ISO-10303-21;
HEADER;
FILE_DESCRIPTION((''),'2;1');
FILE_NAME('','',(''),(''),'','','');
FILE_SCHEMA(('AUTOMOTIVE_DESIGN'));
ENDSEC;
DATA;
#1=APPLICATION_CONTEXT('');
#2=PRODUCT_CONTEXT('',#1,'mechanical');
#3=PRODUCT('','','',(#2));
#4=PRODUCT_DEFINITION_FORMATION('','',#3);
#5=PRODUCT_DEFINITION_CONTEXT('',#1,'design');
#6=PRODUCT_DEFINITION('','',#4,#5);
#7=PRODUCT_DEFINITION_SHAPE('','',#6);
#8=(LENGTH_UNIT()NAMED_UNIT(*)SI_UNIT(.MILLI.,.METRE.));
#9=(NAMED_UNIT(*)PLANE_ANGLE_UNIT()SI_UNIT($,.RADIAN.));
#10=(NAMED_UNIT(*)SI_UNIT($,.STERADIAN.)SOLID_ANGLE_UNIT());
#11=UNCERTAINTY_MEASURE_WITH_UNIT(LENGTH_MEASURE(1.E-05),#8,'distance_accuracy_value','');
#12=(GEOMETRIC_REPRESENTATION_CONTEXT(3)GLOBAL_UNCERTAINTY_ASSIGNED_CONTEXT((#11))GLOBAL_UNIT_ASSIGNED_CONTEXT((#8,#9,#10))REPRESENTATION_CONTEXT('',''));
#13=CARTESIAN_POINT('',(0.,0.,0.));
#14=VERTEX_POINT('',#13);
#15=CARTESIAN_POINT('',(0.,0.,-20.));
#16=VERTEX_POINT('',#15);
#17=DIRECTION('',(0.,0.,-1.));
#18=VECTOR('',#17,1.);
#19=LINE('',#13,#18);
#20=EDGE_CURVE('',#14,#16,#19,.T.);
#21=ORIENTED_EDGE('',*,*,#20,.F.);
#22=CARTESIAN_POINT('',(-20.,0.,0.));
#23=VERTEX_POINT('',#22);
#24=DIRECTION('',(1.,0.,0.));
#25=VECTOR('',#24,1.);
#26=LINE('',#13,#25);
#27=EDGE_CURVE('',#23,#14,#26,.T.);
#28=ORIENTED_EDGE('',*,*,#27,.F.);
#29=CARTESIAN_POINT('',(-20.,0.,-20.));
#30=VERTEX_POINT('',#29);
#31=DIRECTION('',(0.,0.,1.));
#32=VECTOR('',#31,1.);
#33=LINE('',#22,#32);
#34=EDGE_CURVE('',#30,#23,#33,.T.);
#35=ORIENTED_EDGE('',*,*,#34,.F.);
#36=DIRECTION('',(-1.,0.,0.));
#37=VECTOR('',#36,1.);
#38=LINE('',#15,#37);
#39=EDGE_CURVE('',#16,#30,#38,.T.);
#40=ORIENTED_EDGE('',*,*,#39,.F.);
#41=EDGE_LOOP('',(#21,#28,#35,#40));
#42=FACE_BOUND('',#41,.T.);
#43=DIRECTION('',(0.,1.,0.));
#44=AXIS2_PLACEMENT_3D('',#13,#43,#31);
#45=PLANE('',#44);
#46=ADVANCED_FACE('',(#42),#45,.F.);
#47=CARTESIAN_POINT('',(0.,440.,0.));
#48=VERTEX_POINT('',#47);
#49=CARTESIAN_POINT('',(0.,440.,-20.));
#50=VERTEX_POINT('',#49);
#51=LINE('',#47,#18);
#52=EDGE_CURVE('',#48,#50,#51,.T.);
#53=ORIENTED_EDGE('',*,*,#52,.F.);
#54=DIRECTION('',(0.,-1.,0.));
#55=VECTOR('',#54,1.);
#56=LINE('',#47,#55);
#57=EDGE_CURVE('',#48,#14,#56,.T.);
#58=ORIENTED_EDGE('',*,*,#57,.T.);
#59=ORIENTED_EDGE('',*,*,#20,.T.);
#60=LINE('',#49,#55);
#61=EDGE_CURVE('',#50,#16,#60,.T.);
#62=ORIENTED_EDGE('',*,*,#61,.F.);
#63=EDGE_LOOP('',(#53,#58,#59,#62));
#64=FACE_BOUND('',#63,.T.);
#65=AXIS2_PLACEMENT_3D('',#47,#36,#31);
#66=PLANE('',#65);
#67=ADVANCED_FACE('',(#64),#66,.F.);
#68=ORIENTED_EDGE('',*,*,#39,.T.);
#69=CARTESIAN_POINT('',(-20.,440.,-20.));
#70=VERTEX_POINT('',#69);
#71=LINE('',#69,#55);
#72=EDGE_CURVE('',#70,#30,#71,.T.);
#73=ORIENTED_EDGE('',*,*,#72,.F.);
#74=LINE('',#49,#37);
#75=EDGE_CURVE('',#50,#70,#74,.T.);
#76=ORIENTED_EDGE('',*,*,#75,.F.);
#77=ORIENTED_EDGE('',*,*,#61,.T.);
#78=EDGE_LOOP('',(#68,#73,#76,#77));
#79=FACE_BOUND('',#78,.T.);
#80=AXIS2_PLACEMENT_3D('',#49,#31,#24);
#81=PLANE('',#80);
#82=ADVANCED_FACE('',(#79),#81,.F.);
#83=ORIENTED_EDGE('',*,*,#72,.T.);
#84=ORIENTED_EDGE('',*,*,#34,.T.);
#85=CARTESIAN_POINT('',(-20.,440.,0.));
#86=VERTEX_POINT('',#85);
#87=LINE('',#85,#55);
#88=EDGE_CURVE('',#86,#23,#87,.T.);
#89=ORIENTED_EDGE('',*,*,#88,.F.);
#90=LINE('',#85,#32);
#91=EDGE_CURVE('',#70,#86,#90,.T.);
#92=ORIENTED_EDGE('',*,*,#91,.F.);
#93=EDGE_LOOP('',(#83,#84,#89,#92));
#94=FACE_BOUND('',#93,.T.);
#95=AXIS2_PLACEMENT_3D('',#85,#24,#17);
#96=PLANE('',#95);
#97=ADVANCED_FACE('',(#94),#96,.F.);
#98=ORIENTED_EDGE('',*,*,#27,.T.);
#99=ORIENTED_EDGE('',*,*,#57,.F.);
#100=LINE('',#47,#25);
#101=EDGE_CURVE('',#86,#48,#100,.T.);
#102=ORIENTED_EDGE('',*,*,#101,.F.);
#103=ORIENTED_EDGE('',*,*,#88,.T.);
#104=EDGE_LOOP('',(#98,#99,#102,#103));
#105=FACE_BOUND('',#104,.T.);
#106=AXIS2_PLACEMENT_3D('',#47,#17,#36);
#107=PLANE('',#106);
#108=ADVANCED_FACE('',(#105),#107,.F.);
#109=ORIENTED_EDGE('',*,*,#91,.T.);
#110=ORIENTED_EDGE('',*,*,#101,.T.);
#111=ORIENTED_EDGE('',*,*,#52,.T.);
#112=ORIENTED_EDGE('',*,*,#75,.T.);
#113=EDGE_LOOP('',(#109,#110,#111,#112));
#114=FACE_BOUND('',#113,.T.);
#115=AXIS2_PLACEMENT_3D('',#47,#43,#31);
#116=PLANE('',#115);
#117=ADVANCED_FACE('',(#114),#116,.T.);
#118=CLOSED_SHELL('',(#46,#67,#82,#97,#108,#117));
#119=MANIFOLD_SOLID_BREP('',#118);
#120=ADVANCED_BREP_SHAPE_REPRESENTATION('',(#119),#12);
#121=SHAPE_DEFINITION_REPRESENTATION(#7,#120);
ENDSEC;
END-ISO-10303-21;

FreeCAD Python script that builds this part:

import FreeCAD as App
import Part
import Sketcher

V = App.Vector


def add_polygon(sketch, points):
    """Adds a closed chain of lines whose ends are joined by coincident constraints."""
    first, n = sketch.GeometryCount, len(points)
    for a, b in zip(points, points[1:] + points[:1]):
        sketch.addGeometry(Part.LineSegment(App.Vector(*a, 0), App.Vector(*b, 0)), False)
    for i in range(n):
        sketch.addConstraint(Sketcher.Constraint("Coincident", first + i, 2, first + (i + 1) % n, 1))

doc = App.newDocument("Part")
params = doc.addObject("Spreadsheet::Sheet", "Params")
for row, (alias, value) in enumerate([
    ("sketch1_width", "20 mm"),
    ("pad1_length", "440 mm"),
], start=1):
    params.set(f"A{row}", alias)
    params.set(f"B{row}", "=" + value)
    params.setAlias(f"B{row}", alias)

body = doc.addObject("PartDesign::Body", "Body")

# Sketch on XZ plane
sketch1 = doc.addObject("Sketcher::SketchObject", "Sketch")
body.addObject(sketch1)
sketch1.AttachmentSupport = (doc.XZ_Plane, [""])
sketch1.MapMode = "FlatFace"
add_polygon(sketch1, [(-20, -20), (-20, 0), (0, 0), (0, -20)])  # lines 0-3
sketch1.addConstraint([
    Sketcher.Constraint("Vertical", 0),
    Sketcher.Constraint("Horizontal", 1),
    Sketcher.Constraint("Vertical", 2),
    Sketcher.Constraint("Horizontal", 3),
    Sketcher.Constraint("Coincident", 1, 2, -1, 1),
    Sketcher.Constraint("Equal", 3, 0),
    Sketcher.Constraint("DistanceX", 1, 1, 1, 2, 20.0),
])
sketch1.setExpression("Constraints[10]", "Params.sketch1_width")
pad1 = doc.addObject("PartDesign::Pad", "Pad")
body.addObject(pad1)
pad1.Profile = sketch1
pad1.setExpression("Length", "Params.pad1_length")
pad1.Reversed = True

doc.recompute()
